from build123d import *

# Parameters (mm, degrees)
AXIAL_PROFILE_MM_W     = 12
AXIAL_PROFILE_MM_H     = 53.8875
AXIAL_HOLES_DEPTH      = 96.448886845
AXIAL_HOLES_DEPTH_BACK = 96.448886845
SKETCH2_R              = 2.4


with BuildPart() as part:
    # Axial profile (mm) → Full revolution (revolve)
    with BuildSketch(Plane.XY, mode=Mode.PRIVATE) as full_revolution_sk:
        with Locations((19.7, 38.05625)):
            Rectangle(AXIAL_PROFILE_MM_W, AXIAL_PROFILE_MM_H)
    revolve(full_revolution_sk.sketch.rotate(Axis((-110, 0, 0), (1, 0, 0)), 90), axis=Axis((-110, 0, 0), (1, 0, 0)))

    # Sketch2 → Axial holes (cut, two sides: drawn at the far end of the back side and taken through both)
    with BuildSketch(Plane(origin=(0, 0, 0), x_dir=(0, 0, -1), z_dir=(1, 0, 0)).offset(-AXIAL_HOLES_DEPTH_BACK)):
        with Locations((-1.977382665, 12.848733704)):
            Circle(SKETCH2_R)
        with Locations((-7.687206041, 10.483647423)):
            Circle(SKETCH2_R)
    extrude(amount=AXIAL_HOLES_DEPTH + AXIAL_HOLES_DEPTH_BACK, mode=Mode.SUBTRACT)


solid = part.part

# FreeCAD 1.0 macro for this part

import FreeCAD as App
import Part
import Sketcher
from FreeCAD import Vector
Q = App.Units.Quantity


def add_polygon(sketch, points):
    """Adds a closed chain of lines whose ends are joined by coincident constraints."""
    first, n = sketch.GeometryCount, len(points)
    for a, b in zip(points, points[1:] + points[:1]):
        sketch.addGeometry(Part.LineSegment(App.Vector(*a, 0), App.Vector(*b, 0)), False)
    for i in range(n):
        sketch.addConstraint(Sketcher.Constraint("Coincident", first + i, 2, first + (i + 1) % n, 1))

doc = App.newDocument("Part")
body = doc.addObject("PartDesign::Body", "Body")

# Sketch on XY plane
sketch1 = body.newObject("Sketcher::SketchObject", "Sketch")
sketch1.AttachmentSupport = (doc.getObject("XY_Plane"), [""])
sketch1.MapMode = "FlatFace"
add_polygon(sketch1, [(13.7, 65), (13.7, 11.1125), (25.7, 11.1125), (25.7, 65)])  # lines 0-3
sketch1.addConstraint([
    Sketcher.Constraint("Vertical", 0),
    Sketcher.Constraint("Horizontal", 1),
    Sketcher.Constraint("Vertical", 2),
    Sketcher.Constraint("Horizontal", 3),
    Sketcher.Constraint("DistanceX", 1, 1, 1, 2, Q("12 mm")),
    Sketcher.Constraint("DistanceY", -1, 1, 2, 2, Q("65 mm")),
    Sketcher.Constraint("DistanceX", -1, 1, 0, 2, Q("13.7 mm")),
    Sketcher.Constraint("DistanceY", 0, 2, 0, 1, Q("53.8875 mm")),
])
revolution = body.newObject("PartDesign::Revolution", "Revolution")
revolution.Profile = sketch1
revolution.ReferenceAxis = (sketch1, ["H_Axis"])
revolution.Angle = 360

# Sketch on YZ plane
sketch2 = body.newObject("Sketcher::SketchObject", "Sketch001")
sketch2.AttachmentSupport = (doc.getObject("YZ_Plane"), [""])
sketch2.MapMode = "FlatFace"
sketch2.addGeometry([
    Part.Circle(Vector(12.848734, 1.977383, 0), Vector(0, 0, 1), 2.4),
    Part.Circle(Vector(10.483647, 7.687206, 0), Vector(0, 0, 1), 2.4),
], False)
sketch2.addConstraint([
    Sketcher.Constraint("Equal", 0, 1),
    Sketcher.Constraint("Diameter", 0, Q("4.8 mm")),
    Sketcher.Constraint("DistanceX", -1, 1, 0, 3, Q("12.848734 mm")),
    Sketcher.Constraint("DistanceY", -1, 1, 0, 3, Q("1.977383 mm")),
    Sketcher.Constraint("DistanceX", -1, 1, 1, 3, Q("10.483647 mm")),
    Sketcher.Constraint("DistanceY", -1, 1, 1, 3, Q("7.687206 mm")),
])
pocket1 = body.newObject("PartDesign::Pocket", "Pocket")
pocket1.Profile = sketch2
pocket1.Type = "ThroughAll"
pocket1.Midplane = True

doc.recompute()
